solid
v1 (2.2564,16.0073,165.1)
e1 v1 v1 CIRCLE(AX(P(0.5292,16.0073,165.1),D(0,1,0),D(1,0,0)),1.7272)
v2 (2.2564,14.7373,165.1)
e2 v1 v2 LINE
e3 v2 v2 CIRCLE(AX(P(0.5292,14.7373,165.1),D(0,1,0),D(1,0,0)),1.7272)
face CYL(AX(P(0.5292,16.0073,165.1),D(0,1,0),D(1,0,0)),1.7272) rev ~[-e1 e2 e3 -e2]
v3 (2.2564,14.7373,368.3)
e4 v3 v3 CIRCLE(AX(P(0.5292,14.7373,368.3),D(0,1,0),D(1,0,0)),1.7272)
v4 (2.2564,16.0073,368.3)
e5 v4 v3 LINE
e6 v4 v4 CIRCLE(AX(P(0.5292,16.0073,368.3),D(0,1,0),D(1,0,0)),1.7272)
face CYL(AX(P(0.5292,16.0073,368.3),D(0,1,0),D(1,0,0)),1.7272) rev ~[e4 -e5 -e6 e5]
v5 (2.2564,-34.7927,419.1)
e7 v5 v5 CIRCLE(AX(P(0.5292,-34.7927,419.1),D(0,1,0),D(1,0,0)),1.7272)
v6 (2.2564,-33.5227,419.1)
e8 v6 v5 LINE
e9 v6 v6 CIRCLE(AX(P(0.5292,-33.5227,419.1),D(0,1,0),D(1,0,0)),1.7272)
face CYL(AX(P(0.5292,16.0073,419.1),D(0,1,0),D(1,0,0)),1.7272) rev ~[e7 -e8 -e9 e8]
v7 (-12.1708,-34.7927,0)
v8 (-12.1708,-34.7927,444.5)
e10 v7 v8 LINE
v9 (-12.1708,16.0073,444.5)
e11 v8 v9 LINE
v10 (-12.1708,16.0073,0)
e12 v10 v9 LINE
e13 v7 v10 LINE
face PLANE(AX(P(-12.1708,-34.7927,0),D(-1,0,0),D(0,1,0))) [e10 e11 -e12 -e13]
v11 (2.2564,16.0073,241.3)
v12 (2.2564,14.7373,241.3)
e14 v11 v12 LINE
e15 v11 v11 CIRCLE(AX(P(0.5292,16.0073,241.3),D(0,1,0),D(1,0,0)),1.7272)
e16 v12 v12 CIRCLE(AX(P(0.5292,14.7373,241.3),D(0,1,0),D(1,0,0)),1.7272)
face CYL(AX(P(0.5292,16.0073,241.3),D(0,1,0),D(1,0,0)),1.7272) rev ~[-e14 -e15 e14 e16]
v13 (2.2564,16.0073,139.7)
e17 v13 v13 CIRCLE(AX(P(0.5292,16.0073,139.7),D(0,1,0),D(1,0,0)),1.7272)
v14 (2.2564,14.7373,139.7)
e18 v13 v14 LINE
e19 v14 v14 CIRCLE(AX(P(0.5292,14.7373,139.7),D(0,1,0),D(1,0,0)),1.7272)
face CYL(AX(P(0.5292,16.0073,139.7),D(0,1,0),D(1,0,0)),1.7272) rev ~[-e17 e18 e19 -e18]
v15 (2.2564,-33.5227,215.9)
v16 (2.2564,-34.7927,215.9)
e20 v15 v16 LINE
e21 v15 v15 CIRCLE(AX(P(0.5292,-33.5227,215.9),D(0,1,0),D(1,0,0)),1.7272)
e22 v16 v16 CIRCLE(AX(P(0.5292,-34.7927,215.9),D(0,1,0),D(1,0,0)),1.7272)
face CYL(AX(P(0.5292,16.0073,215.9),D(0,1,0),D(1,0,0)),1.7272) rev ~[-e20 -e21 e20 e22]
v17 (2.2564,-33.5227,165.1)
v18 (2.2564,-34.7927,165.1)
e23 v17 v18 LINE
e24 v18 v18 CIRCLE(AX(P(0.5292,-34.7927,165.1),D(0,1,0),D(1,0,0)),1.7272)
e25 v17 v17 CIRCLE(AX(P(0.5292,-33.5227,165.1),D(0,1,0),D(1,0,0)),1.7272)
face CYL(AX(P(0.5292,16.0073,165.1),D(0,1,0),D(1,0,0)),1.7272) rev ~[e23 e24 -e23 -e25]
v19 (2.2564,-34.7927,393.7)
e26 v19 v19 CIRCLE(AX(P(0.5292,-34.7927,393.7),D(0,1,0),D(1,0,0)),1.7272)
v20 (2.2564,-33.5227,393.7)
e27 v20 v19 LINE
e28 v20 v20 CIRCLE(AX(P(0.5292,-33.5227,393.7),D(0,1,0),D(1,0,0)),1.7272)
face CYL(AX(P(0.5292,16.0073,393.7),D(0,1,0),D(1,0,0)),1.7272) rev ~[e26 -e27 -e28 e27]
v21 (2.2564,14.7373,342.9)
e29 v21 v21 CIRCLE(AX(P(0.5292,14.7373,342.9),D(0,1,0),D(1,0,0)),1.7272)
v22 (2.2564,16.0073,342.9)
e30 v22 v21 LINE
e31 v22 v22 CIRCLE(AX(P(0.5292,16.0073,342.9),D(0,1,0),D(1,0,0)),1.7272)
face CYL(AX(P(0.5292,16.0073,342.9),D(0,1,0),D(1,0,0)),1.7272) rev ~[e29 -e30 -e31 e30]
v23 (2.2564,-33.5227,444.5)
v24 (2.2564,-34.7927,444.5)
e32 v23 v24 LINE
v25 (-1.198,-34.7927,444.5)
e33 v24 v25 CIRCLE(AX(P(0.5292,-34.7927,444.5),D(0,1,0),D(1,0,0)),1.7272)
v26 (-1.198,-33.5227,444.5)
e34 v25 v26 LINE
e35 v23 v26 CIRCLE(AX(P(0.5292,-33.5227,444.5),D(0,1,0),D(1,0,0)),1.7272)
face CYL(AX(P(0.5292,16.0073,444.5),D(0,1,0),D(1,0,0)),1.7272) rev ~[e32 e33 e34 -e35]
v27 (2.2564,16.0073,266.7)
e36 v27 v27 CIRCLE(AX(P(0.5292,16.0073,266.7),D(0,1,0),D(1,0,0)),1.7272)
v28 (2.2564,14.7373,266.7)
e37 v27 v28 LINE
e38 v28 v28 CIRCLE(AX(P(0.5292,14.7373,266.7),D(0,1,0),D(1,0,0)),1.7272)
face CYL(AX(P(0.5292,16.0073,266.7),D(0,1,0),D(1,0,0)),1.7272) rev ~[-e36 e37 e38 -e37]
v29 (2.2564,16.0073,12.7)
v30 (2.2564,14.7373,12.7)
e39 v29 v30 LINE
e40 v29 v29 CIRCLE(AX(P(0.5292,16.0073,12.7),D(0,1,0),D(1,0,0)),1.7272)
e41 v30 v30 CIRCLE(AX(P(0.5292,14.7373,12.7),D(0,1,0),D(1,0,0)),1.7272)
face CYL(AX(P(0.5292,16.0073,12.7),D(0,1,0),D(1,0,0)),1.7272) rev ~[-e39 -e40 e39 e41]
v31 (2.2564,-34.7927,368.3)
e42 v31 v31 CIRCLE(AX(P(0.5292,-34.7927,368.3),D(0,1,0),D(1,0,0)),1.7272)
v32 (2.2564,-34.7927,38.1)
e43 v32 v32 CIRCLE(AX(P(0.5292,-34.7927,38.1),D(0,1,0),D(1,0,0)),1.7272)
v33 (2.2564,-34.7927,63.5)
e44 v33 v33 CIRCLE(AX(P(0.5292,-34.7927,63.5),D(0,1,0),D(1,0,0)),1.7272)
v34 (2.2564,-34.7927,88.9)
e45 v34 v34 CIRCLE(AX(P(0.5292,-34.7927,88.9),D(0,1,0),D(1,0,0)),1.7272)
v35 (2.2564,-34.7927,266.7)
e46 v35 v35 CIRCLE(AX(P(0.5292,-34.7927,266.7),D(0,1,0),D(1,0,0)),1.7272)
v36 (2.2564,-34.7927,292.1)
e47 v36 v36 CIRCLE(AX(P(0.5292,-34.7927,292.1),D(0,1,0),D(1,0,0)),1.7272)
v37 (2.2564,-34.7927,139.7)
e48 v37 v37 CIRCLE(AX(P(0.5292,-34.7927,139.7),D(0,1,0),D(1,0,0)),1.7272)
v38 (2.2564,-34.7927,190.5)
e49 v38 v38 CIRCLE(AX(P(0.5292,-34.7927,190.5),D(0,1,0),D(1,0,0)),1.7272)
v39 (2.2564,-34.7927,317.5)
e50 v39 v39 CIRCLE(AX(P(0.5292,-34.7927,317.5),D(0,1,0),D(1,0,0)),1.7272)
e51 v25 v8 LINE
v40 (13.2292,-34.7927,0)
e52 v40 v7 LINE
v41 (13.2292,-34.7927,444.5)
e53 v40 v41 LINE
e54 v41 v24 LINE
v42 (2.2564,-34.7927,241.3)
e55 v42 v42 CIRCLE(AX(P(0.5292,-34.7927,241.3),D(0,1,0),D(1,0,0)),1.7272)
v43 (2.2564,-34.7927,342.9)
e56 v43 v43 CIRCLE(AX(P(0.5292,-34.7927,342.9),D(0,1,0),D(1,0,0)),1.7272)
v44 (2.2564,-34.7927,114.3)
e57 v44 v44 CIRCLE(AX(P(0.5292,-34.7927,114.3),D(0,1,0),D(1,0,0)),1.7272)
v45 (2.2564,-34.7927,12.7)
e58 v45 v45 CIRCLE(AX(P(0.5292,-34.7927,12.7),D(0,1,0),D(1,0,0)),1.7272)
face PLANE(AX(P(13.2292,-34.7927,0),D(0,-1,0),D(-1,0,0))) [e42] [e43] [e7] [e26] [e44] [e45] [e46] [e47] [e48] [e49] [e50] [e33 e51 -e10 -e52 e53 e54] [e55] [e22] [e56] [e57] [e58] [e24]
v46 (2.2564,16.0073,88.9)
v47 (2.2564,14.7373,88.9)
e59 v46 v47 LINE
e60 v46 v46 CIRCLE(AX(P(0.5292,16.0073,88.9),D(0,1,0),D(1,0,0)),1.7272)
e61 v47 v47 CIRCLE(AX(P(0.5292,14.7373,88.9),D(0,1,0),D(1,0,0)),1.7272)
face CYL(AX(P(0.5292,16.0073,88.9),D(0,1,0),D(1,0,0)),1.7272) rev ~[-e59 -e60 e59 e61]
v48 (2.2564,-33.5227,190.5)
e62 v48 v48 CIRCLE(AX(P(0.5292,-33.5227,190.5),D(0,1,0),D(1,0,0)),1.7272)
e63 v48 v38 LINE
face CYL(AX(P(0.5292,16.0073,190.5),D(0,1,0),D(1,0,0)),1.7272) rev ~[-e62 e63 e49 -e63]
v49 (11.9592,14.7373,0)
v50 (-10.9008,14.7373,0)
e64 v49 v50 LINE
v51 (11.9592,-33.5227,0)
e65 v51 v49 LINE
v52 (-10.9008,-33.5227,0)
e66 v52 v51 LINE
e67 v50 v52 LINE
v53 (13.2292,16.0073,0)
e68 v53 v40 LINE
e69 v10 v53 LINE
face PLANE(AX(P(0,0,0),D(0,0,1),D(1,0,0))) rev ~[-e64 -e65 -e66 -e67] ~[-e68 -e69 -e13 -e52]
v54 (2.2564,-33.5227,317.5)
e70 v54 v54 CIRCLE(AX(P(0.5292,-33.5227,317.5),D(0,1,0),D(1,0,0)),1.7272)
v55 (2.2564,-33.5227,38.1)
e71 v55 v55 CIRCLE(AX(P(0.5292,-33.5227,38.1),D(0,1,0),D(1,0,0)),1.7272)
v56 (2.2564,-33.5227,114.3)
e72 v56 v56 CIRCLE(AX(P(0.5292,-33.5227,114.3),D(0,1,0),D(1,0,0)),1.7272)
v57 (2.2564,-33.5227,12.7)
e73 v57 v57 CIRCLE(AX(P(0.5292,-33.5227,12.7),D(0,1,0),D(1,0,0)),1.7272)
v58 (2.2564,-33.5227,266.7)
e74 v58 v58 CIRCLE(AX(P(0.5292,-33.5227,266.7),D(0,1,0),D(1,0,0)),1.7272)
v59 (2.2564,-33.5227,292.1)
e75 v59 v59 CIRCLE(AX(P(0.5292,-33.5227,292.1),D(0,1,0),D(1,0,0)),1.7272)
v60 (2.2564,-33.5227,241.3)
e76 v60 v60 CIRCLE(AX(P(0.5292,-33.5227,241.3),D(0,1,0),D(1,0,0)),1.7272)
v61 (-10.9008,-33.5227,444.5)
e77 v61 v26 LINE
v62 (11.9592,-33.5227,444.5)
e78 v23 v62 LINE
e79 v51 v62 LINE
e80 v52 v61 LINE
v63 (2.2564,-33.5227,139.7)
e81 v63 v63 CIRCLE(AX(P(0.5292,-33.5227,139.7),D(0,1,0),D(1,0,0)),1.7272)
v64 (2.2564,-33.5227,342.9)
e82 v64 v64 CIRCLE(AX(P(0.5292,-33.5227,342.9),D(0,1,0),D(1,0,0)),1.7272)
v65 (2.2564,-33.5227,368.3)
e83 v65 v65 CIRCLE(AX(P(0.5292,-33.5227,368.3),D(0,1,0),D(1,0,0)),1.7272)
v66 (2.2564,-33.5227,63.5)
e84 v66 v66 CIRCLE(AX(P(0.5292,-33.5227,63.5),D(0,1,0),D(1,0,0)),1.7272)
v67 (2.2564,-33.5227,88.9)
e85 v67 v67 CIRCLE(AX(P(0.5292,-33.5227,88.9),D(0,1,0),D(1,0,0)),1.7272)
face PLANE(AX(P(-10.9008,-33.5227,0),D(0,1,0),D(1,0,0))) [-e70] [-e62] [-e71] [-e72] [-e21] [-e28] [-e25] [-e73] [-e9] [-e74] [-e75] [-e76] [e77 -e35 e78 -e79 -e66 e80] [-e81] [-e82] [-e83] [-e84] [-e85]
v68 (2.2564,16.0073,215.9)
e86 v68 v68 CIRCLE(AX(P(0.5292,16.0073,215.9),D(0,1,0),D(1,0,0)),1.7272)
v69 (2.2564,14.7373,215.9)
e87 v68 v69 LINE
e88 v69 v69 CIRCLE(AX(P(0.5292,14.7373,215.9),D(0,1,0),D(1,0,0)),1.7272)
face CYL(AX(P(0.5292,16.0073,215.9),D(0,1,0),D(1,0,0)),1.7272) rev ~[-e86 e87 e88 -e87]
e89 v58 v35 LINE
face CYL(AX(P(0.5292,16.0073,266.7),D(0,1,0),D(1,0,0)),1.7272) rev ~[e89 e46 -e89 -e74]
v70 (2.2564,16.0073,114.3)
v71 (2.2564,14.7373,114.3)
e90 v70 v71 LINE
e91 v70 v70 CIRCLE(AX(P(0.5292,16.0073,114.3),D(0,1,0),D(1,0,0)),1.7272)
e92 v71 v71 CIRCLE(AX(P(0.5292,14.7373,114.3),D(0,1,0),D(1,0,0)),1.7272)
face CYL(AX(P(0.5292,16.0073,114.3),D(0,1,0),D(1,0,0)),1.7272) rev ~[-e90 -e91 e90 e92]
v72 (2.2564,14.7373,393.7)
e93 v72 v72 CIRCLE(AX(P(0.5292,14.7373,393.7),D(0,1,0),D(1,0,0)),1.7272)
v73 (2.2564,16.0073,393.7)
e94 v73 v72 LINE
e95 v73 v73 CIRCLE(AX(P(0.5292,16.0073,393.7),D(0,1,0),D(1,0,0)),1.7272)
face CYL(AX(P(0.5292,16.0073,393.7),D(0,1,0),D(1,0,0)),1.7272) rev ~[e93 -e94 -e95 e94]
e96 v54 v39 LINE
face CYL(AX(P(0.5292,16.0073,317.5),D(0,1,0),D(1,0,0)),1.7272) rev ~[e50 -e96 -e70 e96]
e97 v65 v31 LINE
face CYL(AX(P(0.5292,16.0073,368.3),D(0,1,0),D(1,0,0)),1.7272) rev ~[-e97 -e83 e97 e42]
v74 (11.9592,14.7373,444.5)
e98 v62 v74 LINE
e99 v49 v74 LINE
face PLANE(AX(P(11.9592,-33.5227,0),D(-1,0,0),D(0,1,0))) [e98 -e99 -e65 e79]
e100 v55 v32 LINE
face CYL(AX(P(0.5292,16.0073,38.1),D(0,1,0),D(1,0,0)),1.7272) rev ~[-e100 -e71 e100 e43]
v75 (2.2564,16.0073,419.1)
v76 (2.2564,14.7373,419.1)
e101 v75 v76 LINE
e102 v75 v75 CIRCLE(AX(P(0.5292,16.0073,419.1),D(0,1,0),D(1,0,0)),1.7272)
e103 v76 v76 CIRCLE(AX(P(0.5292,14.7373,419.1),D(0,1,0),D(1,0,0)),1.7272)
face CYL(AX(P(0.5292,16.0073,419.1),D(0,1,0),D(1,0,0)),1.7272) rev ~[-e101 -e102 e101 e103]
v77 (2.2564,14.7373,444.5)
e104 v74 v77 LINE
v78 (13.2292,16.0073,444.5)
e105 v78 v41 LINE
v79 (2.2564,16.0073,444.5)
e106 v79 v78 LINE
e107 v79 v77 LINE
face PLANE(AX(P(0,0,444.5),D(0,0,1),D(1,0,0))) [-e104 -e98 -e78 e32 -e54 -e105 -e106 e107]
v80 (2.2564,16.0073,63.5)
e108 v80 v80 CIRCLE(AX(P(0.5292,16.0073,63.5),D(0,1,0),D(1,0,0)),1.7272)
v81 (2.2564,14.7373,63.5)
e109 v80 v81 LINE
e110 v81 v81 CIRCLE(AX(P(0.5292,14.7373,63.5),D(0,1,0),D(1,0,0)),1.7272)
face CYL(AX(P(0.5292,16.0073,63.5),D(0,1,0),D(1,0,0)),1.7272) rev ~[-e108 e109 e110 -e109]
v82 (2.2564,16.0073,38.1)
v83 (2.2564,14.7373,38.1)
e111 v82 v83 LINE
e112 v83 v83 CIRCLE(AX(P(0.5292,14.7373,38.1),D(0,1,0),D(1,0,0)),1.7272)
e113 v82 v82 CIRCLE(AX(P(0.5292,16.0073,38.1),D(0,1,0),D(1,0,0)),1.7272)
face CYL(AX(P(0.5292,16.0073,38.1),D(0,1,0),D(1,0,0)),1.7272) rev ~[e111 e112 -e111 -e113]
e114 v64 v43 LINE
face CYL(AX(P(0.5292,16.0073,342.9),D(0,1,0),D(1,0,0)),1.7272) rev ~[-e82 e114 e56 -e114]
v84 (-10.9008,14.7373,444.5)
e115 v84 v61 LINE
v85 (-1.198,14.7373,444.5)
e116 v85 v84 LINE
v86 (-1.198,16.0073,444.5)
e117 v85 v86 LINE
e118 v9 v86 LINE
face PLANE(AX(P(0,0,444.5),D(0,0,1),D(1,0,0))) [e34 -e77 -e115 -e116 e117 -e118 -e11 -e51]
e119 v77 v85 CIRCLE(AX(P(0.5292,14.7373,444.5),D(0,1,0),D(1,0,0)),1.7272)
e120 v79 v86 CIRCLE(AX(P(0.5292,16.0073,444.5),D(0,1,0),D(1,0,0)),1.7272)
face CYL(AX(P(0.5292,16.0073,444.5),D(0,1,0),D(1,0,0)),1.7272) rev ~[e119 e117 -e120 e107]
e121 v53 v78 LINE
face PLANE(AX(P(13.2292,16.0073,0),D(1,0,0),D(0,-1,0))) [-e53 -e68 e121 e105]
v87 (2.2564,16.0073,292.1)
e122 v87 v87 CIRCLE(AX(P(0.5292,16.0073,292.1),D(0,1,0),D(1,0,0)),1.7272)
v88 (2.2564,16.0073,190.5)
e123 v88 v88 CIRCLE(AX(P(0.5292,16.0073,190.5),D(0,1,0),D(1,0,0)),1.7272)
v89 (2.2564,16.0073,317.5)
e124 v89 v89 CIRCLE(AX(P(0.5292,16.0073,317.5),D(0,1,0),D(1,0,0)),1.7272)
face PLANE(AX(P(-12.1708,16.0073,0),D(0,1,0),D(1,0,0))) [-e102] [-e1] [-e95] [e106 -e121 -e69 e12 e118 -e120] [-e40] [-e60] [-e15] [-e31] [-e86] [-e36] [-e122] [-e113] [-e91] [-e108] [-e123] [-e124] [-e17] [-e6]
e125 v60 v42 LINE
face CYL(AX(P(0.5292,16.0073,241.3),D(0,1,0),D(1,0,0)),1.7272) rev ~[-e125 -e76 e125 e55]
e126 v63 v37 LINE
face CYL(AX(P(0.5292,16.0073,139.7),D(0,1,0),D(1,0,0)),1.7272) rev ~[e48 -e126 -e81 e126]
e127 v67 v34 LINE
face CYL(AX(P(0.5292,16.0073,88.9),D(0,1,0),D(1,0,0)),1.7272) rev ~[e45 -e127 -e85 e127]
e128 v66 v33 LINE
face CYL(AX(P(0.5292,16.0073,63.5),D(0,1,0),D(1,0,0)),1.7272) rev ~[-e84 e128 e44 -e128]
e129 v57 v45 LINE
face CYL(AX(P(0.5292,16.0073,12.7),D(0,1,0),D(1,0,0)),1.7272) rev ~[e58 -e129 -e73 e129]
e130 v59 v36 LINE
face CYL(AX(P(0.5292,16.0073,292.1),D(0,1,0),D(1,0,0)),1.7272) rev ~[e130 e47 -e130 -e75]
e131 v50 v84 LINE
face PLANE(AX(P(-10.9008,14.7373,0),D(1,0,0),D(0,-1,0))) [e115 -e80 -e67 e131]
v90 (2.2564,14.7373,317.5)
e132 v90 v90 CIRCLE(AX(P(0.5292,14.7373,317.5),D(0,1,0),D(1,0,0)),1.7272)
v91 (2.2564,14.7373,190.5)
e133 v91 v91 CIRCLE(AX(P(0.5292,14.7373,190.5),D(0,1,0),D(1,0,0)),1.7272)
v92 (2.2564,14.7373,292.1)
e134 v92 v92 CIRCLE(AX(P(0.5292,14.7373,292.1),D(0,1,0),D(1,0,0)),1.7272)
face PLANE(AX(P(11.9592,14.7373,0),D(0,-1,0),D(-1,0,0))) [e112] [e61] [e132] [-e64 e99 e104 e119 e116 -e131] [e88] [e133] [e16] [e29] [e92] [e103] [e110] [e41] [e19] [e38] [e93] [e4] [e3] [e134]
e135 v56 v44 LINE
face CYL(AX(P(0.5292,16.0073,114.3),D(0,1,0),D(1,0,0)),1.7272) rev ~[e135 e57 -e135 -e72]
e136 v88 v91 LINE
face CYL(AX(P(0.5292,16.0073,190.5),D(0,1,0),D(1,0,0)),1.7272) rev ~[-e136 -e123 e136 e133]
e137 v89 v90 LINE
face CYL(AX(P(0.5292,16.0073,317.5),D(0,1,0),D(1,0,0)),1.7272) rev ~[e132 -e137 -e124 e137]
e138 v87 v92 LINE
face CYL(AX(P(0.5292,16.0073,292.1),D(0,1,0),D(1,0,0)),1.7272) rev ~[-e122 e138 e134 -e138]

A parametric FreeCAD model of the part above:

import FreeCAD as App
import Part
import Sketcher
Q = App.Units.Quantity


def add_polygon(sketch, points):
    """Adds a closed chain of lines whose ends are joined by coincident constraints."""
    first, n = sketch.GeometryCount, len(points)
    for a, b in zip(points, points[1:] + points[:1]):
        sketch.addGeometry(Part.LineSegment(App.Vector(*a, 0), App.Vector(*b, 0)), False)
    for i in range(n):
        sketch.addConstraint(Sketcher.Constraint("Coincident", first + i, 2, first + (i + 1) % n, 1))

doc = App.newDocument("Part")
body = doc.addObject("PartDesign::Body", "Body")

sketch1 = body.newObject("Sketcher::SketchObject", "Sketch")
sketch1.AttachmentSupport = (doc.getObject("XY_Plane"), [""])
sketch1.MapMode = "FlatFace"
add_polygon(sketch1, [(13, 16), (-12, 16), (-12, -35), (13, -35)])
add_polygon(sketch1, [(-11, 15), (12, 15), (12, -34), (-11, -34)])
sketch1.addConstraint(Sketcher.Constraint("Horizontal", 0))
sketch1.addConstraint(Sketcher.Constraint("Vertical", 1))
sketch1.addConstraint(Sketcher.Constraint("Horizontal", 2))
sketch1.addConstraint(Sketcher.Constraint("Vertical", 3))
sketch1.addConstraint(Sketcher.Constraint("Horizontal", 4))
sketch1.addConstraint(Sketcher.Constraint("Vertical", 5))
sketch1.addConstraint(Sketcher.Constraint("Horizontal", 6))
sketch1.addConstraint(Sketcher.Constraint("Vertical", 7))
sketch1.addConstraint(Sketcher.Constraint("DistanceX", 0, 2, 0, 1, Q("1 in")))
sketch1.addConstraint(Sketcher.Constraint("DistanceY", 1, 2, 1, 1, Q("2 in")))
sketch1.addConstraint(Sketcher.Constraint("DistanceX", 4, 2, 3, 2, Q("0.05 in")))
sketch1.addConstraint(Sketcher.Constraint("DistanceY", 4, 2, 3, 2, Q("0.05 in")))
sketch1.addConstraint(Sketcher.Constraint("DistanceY", 2, 2, 5, 2, Q("0.05 in")))
sketch1.addConstraint(Sketcher.Constraint("DistanceX", 1, 2, 6, 2, Q("0.05 in")))
sketch1.addConstraint(Sketcher.Constraint("DistanceY", -1, 1, 0, 2, Q("0.6302 in")))
sketch1.addConstraint(Sketcher.Constraint("DistanceX", 0, 2, -1, 1, Q("12.1708 mm")))
pad1 = body.newObject("PartDesign::Pad", "Pad")
pad1.Profile = sketch1
pad1.Length = Q("17.5 in")

sketch2 = body.newObject("Sketcher::SketchObject", "Sketch001")
sketch2.AttachmentSupport = (doc.getObject("XZ_Plane"), [""])
sketch2.MapMode = "FlatFace"
sketch2.AttachmentOffset = App.Placement(App.Vector(0, 0, -0.6302087 * 25.4), App.Rotation())
sketch2.addGeometry(Part.Circle(App.Vector(0.5, 12.7, 0), App.Vector(0, 0, 1), 1.7), False)
sketch2.addConstraint(Sketcher.Constraint("Diameter", 0, Q("0.136 in")))
sketch2.addConstraint(Sketcher.Constraint("DistanceY", -1, 1, 0, 3, Q("0.5 in")))
sketch2.addConstraint(Sketcher.Constraint("DistanceX", -1, 1, 0, 3, Q("0.5292 mm")))
pocket1 = body.newObject("PartDesign::Pocket", "Pocket")
pocket1.Profile = sketch2
pocket1.Type = "ThroughAll"
pocket1.Reversed = True
doc.recompute()

linearpattern = body.newObject("PartDesign::LinearPattern", "LinearPattern")
linearpattern.Originals = [pocket1]
linearpattern.Direction = (doc.getObject("Z_Axis"), [""])
linearpattern.Mode = "offset"
linearpattern.Offset = Q("1 in")
linearpattern.Occurrences = 44
body.Tip = linearpattern

doc.recompute()
